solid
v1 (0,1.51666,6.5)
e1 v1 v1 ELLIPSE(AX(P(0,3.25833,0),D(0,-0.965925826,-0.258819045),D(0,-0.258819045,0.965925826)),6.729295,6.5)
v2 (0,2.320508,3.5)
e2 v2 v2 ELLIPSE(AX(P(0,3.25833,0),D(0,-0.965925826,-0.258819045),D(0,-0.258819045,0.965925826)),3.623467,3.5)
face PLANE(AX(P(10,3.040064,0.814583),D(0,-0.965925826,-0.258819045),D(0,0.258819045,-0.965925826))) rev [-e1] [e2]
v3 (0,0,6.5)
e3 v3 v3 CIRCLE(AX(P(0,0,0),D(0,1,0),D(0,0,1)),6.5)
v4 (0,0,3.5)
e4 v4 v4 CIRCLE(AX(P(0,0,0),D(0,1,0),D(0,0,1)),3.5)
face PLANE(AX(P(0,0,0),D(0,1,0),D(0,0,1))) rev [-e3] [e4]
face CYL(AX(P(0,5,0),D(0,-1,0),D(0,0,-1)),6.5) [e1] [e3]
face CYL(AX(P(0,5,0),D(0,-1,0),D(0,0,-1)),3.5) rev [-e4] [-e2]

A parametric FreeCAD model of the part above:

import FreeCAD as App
import Part
import Sketcher
Q = App.Units.Quantity


def add_polygon(sketch, points):
    """Adds a closed chain of lines whose ends are joined by coincident constraints."""
    first, n = sketch.GeometryCount, len(points)
    for a, b in zip(points, points[1:] + points[:1]):
        sketch.addGeometry(Part.LineSegment(App.Vector(*a, 0), App.Vector(*b, 0)), False)
    for i in range(n):
        sketch.addConstraint(Sketcher.Constraint("Coincident", first + i, 2, first + (i + 1) % n, 1))

doc = App.newDocument("Part")
body = doc.addObject("PartDesign::Body", "Body")

# Sketch on XZ plane
sketch1 = doc.addObject("Sketcher::SketchObject", "Sketch")
body.addObject(sketch1)
sketch1.AttachmentSupport = (doc.XZ_Plane, [""])
sketch1.MapMode = "FlatFace"
sketch1.addGeometry([
    Part.Circle(App.Vector(0, 0, 0), App.Vector(0, 0, 1), 6.5),
    Part.Circle(App.Vector(0, 0, 0), App.Vector(0, 0, 1), 3.5),
], False)
sketch1.addConstraint([
    Sketcher.Constraint("Coincident", 0, 3, -1, 1),
    Sketcher.Constraint("Coincident", 1, 3, -1, 1),
    Sketcher.Constraint("Diameter", 0, 13.0),
    Sketcher.Constraint("Diameter", 1, 7.0),
])
pad1 = doc.addObject("PartDesign::Pad", "Pad")
body.addObject(pad1)
pad1.Profile = sketch1
pad1.Length = 5
pad1.Reversed = True

# Sketch on YZ plane
sketch2 = doc.addObject("Sketcher::SketchObject", "Sketch001")
body.addObject(sketch2)
sketch2.AttachmentSupport = (doc.YZ_Plane, [""])
sketch2.MapMode = "FlatFace"
add_polygon(sketch2, [(5, -6.5), (5, 6.5), (1.5, 6.5)])  # lines 0-2
sketch2.addConstraint([
    Sketcher.Constraint("Vertical", 0),
    Sketcher.Constraint("Horizontal", 1),
    Sketcher.Constraint("DistanceY", 0, 1, 0, 2, 13.0),
    Sketcher.Constraint("Angle", 2, Q("-75 deg")),
    Sketcher.Constraint("DistanceX", -1, 1, 0, 2, 5.0),
    Sketcher.Constraint("DistanceY", -1, 1, 0, 2, 6.5),
])
pocket1 = doc.addObject("PartDesign::Pocket", "Pocket")
body.addObject(pocket1)
pocket1.Profile = sketch2
pocket1.Type = "ThroughAll"
pocket1.Midplane = True

doc.recompute()
